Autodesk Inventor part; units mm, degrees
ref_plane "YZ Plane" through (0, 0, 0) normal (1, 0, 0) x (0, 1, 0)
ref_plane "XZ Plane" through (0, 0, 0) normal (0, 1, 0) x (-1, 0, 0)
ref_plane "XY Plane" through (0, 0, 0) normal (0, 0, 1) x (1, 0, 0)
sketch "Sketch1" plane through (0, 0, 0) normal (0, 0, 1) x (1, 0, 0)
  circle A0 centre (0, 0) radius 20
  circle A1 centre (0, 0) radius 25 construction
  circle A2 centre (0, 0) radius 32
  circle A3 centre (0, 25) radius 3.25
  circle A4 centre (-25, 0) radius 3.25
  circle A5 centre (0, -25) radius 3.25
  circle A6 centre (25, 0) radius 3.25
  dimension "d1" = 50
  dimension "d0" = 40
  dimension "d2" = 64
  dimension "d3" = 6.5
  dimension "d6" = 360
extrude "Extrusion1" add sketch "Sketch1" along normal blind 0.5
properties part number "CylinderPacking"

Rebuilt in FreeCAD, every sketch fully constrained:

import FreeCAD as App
import Part
import Sketcher

V = App.Vector

doc = App.newDocument("Part")
body = doc.addObject("PartDesign::Body", "Body")

sketch1 = body.newObject("Sketcher::SketchObject", "Sketch")
sketch1.AttachmentSupport = (doc.getObject("XY_Plane"), [""])
sketch1.MapMode = "FlatFace"
sketch1.addGeometry([
    Part.Circle(V(0, 0, 0), V(0, 0, 1), 32),
    Part.Circle(V(0, -25, 0), V(0, 0, 1), 3.25),
    Part.Circle(V(-25, 0, 0), V(0, 0, 1), 3.25),
    Part.Circle(V(0, 0, 0), V(0, 0, 1), 20),
    Part.Circle(V(25, 0, 0), V(0, 0, 1), 3.25),
    Part.Circle(V(0, 25, 0), V(0, 0, 1), 3.25),
], False)
sketch1.addConstraint([
    Sketcher.Constraint("Coincident", 0, 3, -1, 1),
    Sketcher.Constraint("Coincident", 3, 3, -1, 1),
    Sketcher.Constraint("Equal", 1, 2),
    Sketcher.Constraint("Equal", 2, 4),
    Sketcher.Constraint("Equal", 4, 5),
    Sketcher.Constraint("Symmetric", 2, 3, 4, 3, -1, 1),
    Sketcher.Constraint("Symmetric", 1, 3, 5, 3, -1, 1),
    Sketcher.Constraint("PointOnObject", 1, 3, -2),
    Sketcher.Constraint("PointOnObject", 2, 3, -1),
    Sketcher.Constraint("Diameter", 0, 64.0),
    Sketcher.Constraint("Diameter", 3, 40.0),
    Sketcher.Constraint("Diameter", 1, 6.5),
    Sketcher.Constraint("DistanceX", 2, 3, 4, 3, 50.0),
    Sketcher.Constraint("DistanceY", 1, 3, 5, 3, 50.0),
])
pad1 = body.newObject("PartDesign::Pad", "Pad")
pad1.Profile = sketch1
pad1.Length = 0.5

doc.recompute()
